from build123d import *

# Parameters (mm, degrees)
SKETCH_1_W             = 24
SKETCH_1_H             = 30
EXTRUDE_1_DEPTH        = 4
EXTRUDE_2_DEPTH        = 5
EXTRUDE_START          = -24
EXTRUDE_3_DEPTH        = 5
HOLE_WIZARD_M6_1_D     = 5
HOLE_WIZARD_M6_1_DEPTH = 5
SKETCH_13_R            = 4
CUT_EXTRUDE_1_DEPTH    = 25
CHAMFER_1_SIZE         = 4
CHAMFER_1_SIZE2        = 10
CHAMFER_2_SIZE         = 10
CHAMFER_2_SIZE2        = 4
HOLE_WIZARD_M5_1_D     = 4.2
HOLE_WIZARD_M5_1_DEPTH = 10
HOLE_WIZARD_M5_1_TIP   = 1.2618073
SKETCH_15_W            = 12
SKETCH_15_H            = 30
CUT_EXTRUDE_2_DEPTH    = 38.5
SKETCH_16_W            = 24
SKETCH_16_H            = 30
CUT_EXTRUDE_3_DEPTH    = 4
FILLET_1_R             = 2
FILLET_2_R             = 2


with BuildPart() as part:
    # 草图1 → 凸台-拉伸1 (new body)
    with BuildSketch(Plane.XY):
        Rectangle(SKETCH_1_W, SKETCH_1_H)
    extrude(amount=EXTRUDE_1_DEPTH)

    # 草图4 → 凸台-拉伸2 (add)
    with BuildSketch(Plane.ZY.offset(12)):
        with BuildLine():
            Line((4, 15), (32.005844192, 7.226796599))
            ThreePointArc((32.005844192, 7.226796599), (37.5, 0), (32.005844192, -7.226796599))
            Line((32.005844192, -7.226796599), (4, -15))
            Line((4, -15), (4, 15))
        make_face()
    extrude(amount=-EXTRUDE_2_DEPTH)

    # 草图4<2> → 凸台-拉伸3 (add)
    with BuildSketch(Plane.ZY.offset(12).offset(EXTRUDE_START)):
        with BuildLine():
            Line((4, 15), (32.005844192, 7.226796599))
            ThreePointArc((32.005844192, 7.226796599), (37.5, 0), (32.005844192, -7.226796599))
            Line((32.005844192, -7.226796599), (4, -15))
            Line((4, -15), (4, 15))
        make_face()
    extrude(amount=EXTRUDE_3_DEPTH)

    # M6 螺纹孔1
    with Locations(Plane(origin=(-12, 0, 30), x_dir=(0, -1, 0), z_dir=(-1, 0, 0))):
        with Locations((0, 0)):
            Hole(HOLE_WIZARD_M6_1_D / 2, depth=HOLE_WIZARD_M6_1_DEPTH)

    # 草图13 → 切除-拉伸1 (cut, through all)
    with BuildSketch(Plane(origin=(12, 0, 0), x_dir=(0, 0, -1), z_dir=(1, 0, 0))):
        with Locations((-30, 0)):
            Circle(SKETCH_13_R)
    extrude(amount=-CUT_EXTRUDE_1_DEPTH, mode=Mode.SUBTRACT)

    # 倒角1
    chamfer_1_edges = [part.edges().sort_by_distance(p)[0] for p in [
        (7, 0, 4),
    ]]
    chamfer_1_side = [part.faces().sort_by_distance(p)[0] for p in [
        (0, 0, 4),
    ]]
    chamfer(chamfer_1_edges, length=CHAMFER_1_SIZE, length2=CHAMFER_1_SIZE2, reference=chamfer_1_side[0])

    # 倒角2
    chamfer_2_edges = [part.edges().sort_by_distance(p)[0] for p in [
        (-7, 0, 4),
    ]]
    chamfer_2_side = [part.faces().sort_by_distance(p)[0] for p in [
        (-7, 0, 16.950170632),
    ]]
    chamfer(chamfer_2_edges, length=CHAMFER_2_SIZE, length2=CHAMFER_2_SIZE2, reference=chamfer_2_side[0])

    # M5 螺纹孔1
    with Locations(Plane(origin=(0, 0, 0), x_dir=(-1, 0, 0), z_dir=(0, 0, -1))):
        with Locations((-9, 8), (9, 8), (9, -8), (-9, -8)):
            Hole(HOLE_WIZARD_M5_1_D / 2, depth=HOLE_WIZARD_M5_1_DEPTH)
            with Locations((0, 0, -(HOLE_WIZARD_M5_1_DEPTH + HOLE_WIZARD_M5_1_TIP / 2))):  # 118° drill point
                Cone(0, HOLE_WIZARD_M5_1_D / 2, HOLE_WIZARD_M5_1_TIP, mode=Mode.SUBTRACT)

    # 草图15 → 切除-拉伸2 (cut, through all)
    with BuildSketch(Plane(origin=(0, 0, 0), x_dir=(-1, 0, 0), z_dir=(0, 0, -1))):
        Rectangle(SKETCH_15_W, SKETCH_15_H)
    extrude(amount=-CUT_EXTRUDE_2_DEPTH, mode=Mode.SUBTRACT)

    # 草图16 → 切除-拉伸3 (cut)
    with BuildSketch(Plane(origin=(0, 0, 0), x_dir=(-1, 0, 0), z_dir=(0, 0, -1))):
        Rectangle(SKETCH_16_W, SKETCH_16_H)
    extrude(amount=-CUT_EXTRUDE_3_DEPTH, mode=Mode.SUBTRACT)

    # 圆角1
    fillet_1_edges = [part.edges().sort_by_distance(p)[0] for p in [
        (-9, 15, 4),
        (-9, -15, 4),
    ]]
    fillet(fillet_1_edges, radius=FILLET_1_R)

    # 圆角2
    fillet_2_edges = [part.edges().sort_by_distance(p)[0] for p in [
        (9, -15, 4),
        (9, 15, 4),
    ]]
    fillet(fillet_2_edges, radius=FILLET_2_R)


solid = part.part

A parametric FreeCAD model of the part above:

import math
import FreeCAD as App
import Part
import Sketcher


def edges_at(feature, points):
    """Names of the edges that pass closest to the given points."""
    edges = feature.Shape.Edges
    near = lambda p: min(range(len(edges)), key=lambda i: edges[i].distToShape(Part.Vertex(*p))[0])
    return sorted({f"Edge{near(p) + 1}" for p in points})

doc = App.newDocument("Part")
params = doc.addObject("Spreadsheet::Sheet", "Params")
for row, (alias, value) in enumerate([
    ("sketch1_width", "24 mm"),
    ("sketch1_height", "30 mm"),
    ("pad1_length", "4 mm"),
    ("sketch2_radius", "7.5 mm"),
    ("sketch2_width", "30 mm"),
    ("pad2_length", "5 mm"),
    ("sketch3_radius", "7.5 mm"),
    ("sketch3_width", "30 mm"),
    ("pad3_length", "5 mm"),
    ("sketch4_diameter", "5 mm"),
    ("hole_diameter", "5 mm"),
    ("hole_depth", "5 mm"),
    ("sketch5_diameter", "8 mm"),
    ("chamfer_size", "4 mm"),
    ("chamfer_size2", "10 mm"),
    ("chamfer2_size", "10 mm"),
    ("chamfer2_size2", "4 mm"),
    ("sketch6_diameter", "4.2 mm"),
    ("hole2_diameter", "4.2 mm"),
    ("hole2_depth", "10 mm"),
    ("sketch7_width", "12 mm"),
    ("sketch7_height", "30 mm"),
    ("sketch8_width", "24 mm"),
    ("sketch8_height", "30 mm"),
    ("pocket3_length", "4 mm"),
    ("fillet_radius", "2 mm"),
    ("fillet2_radius", "2 mm"),
], start=1):
    params.set(f"A{row}", alias)
    params.set(f"B{row}", "=" + value)
    params.setAlias(f"B{row}", alias)

body = doc.addObject("PartDesign::Body", "Body")
body.AllowCompound = True

# Sketch on XY plane
sketch1 = body.newObject("Sketcher::SketchObject", "Sketch")
sketch1.AttachmentSupport = (doc.getObject("XY_Plane"), [""])
sketch1.MapMode = "FlatFace"
sketch1.addGeometry([
    Part.LineSegment(App.Vector(-12, 15, 0), App.Vector(-12, -15, 0)),
    Part.LineSegment(App.Vector(-12, -15, 0), App.Vector(12, -15, 0)),
    Part.LineSegment(App.Vector(12, -15, 0), App.Vector(12, 15, 0)),
    Part.LineSegment(App.Vector(12, 15, 0), App.Vector(-12, 15, 0)),
], False)
sketch1.addConstraint([
    Sketcher.Constraint("Coincident", 0, 2, 1, 1),
    Sketcher.Constraint("Coincident", 1, 2, 2, 1),
    Sketcher.Constraint("Coincident", 2, 2, 3, 1),
    Sketcher.Constraint("Coincident", 3, 2, 0, 1),
    Sketcher.Constraint("Vertical", 0),
    Sketcher.Constraint("Horizontal", 1),
    Sketcher.Constraint("Vertical", 2),
    Sketcher.Constraint("Horizontal", 3),
    Sketcher.Constraint("Symmetric", 0, 2, 2, 2, -1, 1),
    Sketcher.Constraint("DistanceX", 1, 1, 1, 2, 24.0),
    Sketcher.Constraint("DistanceY", 0, 2, 0, 1, 30.0),
])
sketch1.setExpression("Constraints[9]", "Params.sketch1_width")
sketch1.setExpression("Constraints[10]", "Params.sketch1_height")
pad1 = body.newObject("PartDesign::Pad", "Pad")
pad1.Profile = sketch1
pad1.setExpression("Length", "Params.pad1_length")

# Sketch on YZ plane
sketch2 = body.newObject("Sketcher::SketchObject", "Sketch001")
sketch2.AttachmentSupport = (doc.getObject("YZ_Plane"), [""])
sketch2.MapMode = "FlatFace"
sketch2.AttachmentOffset = App.Placement(App.Vector(0, 0, -12), App.Rotation())
sketch2.addGeometry([
    Part.LineSegment(App.Vector(7, 32, 0), App.Vector(15, 4, 0)),
    Part.LineSegment(App.Vector(15, 4, 0), App.Vector(-15, 4, 0)),
    Part.LineSegment(App.Vector(-15, 4, 0), App.Vector(-7, 32, 0)),
    Part.ArcOfCircle(Part.Circle(App.Vector(0, 30, 0), App.Vector(0, 0, 1), 8), math.radians(16), math.radians(164)),
], False)
sketch2.addConstraint([
    Sketcher.Constraint("Coincident", 0, 2, 1, 1),
    Sketcher.Constraint("Coincident", 1, 2, 2, 1),
    Sketcher.Constraint("Tangent", 2, 2, 3, 2),
    Sketcher.Constraint("Tangent", 3, 1, 0, 1),
    Sketcher.Constraint("Horizontal", 1),
    Sketcher.Constraint("Symmetric", 2, 2, 3, 1, -2),
    Sketcher.Constraint("Radius", 3, 7.5),
    Sketcher.Constraint("DistanceX", 1, 2, 1, 1, 30.0),
    Sketcher.Constraint("DistanceY", -1, 1, 3, 3, 30.0),
    Sketcher.Constraint("DistanceY", -1, 1, 0, 2, 4.0),
])
sketch2.setExpression("Constraints[6]", "Params.sketch2_radius")
sketch2.setExpression("Constraints[7]", "Params.sketch2_width")
pad2 = body.newObject("PartDesign::Pad", "Pad001")
pad2.Profile = sketch2
pad2.setExpression("Length", "Params.pad2_length")

# Sketch on YZ plane
sketch3 = body.newObject("Sketcher::SketchObject", "Sketch002")
sketch3.AttachmentSupport = (doc.getObject("YZ_Plane"), [""])
sketch3.MapMode = "FlatFace"
sketch3.AttachmentOffset = App.Placement(App.Vector(0, 0, 12), App.Rotation())
sketch3.addGeometry([
    Part.LineSegment(App.Vector(7, 32, 0), App.Vector(15, 4, 0)),
    Part.LineSegment(App.Vector(15, 4, 0), App.Vector(-15, 4, 0)),
    Part.LineSegment(App.Vector(-15, 4, 0), App.Vector(-7, 32, 0)),
    Part.ArcOfCircle(Part.Circle(App.Vector(0, 30, 0), App.Vector(0, 0, 1), 8), math.radians(16), math.radians(164)),
], False)
sketch3.addConstraint([
    Sketcher.Constraint("Coincident", 0, 2, 1, 1),
    Sketcher.Constraint("Coincident", 1, 2, 2, 1),
    Sketcher.Constraint("Tangent", 2, 2, 3, 2),
    Sketcher.Constraint("Tangent", 3, 1, 0, 1),
    Sketcher.Constraint("Horizontal", 1),
    Sketcher.Constraint("Symmetric", 2, 2, 3, 1, -2),
    Sketcher.Constraint("Radius", 3, 7.5),
    Sketcher.Constraint("DistanceX", 1, 2, 1, 1, 30.0),
    Sketcher.Constraint("DistanceY", -1, 1, 3, 3, 30.0),
    Sketcher.Constraint("DistanceY", -1, 1, 0, 2, 4.0),
])
sketch3.setExpression("Constraints[6]", "Params.sketch3_radius")
sketch3.setExpression("Constraints[7]", "Params.sketch3_width")
pad3 = body.newObject("PartDesign::Pad", "Pad002")
pad3.Profile = sketch3
pad3.setExpression("Length", "Params.pad3_length")
pad3.Reversed = True

# Sketch on YZ plane
sketch4 = body.newObject("Sketcher::SketchObject", "Sketch003")
sketch4.AttachmentSupport = (doc.getObject("YZ_Plane"), [""])
sketch4.MapMode = "FlatFace"
sketch4.AttachmentOffset = App.Placement(App.Vector(0, 0, -12), App.Rotation())
sketch4.addGeometry(Part.Circle(App.Vector(0, 30, 0), App.Vector(0, 0, 1), 2.5), False)
sketch4.addConstraint([
    Sketcher.Constraint("PointOnObject", 0, 3, -2),
    Sketcher.Constraint("Diameter", 0, 5.0),
    Sketcher.Constraint("DistanceY", -1, 1, 0, 3, 30.0),
])
sketch4.setExpression("Constraints[1]", "Params.sketch4_diameter")
doc.recompute()
hole = body.newObject("PartDesign::Hole", "Hole")
hole.Profile = sketch4
hole.ThreadType = "None"
hole.setExpression("Diameter", "Params.hole_diameter")
hole.DepthType = "Dimension"
hole.setExpression("Depth", "Params.hole_depth")
hole.DrillPoint = "Flat"
hole.Reversed = True

# Sketch on YZ plane
sketch5 = body.newObject("Sketcher::SketchObject", "Sketch004")
sketch5.AttachmentSupport = (doc.getObject("YZ_Plane"), [""])
sketch5.MapMode = "FlatFace"
sketch5.AttachmentOffset = App.Placement(App.Vector(0, 0, 12), App.Rotation())
sketch5.addGeometry(Part.Circle(App.Vector(0, 30, 0), App.Vector(0, 0, 1), 4), False)
sketch5.addConstraint([
    Sketcher.Constraint("PointOnObject", 0, 3, -2),
    Sketcher.Constraint("Diameter", 0, 8.0),
    Sketcher.Constraint("DistanceY", -1, 1, 0, 3, 30.0),
])
sketch5.setExpression("Constraints[1]", "Params.sketch5_diameter")
pocket1 = body.newObject("PartDesign::Pocket", "Pocket")
pocket1.Profile = sketch5
pocket1.Type = "ThroughAll"
doc.recompute()

chamfer = body.newObject("PartDesign::Chamfer", "Chamfer")
chamfer.Base = (pocket1, edges_at(pocket1, [(7, 0, 4)]))
chamfer.ChamferType = "Two distances"
chamfer.setExpression("Size", "Params.chamfer_size")
chamfer.setExpression("Size2", "Params.chamfer_size2")
doc.recompute()

chamfer2 = body.newObject("PartDesign::Chamfer", "Chamfer001")
chamfer2.Base = (chamfer, edges_at(chamfer, [(-7, 0, 4)]))
chamfer2.ChamferType = "Two distances"
chamfer2.setExpression("Size", "Params.chamfer2_size")
chamfer2.setExpression("Size2", "Params.chamfer2_size2")
chamfer2.FlipDirection = True

# Sketch on XY plane
sketch6 = body.newObject("Sketcher::SketchObject", "Sketch005")
sketch6.AttachmentSupport = (doc.getObject("XY_Plane"), [""])
sketch6.MapMode = "FlatFace"
sketch6.addGeometry([
    Part.Circle(App.Vector(9, 8, 0), App.Vector(0, 0, 1), 2.1),
    Part.Circle(App.Vector(-9, 8, 0), App.Vector(0, 0, 1), 2.1),
    Part.Circle(App.Vector(-9, -8, 0), App.Vector(0, 0, 1), 2.1),
    Part.Circle(App.Vector(9, -8, 0), App.Vector(0, 0, 1), 2.1),
], False)
sketch6.addConstraint([
    Sketcher.Constraint("Equal", 0, 1),
    Sketcher.Constraint("Equal", 1, 2),
    Sketcher.Constraint("Equal", 2, 3),
    Sketcher.Constraint("Symmetric", 0, 3, 2, 3, -1, 1),
    Sketcher.Constraint("Symmetric", 1, 3, 3, 3, -1, 1),
    Sketcher.Constraint("Symmetric", 0, 3, 1, 3, -2),
    Sketcher.Constraint("Diameter", 0, 4.2),
    Sketcher.Constraint("DistanceX", -1, 1, 0, 3, 9.0),
    Sketcher.Constraint("DistanceY", -1, 1, 0, 3, 8.0),
])
sketch6.setExpression("Constraints[6]", "Params.sketch6_diameter")
doc.recompute()
hole2 = body.newObject("PartDesign::Hole", "Hole001")
hole2.Profile = sketch6
hole2.ThreadType = "None"
hole2.setExpression("Diameter", "Params.hole2_diameter")
hole2.DepthType = "Dimension"
hole2.setExpression("Depth", "Params.hole2_depth")
hole2.DrillPoint = "Angled"
hole2.DrillPointAngle = 118
hole2.Reversed = True

# Sketch on XY plane
sketch7 = body.newObject("Sketcher::SketchObject", "Sketch006")
sketch7.AttachmentSupport = (doc.getObject("XY_Plane"), [""])
sketch7.MapMode = "FlatFace"
sketch7.addGeometry([
    Part.LineSegment(App.Vector(6, 15, 0), App.Vector(6, -15, 0)),
    Part.LineSegment(App.Vector(6, -15, 0), App.Vector(-6, -15, 0)),
    Part.LineSegment(App.Vector(-6, -15, 0), App.Vector(-6, 15, 0)),
    Part.LineSegment(App.Vector(-6, 15, 0), App.Vector(6, 15, 0)),
], False)
sketch7.addConstraint([
    Sketcher.Constraint("Coincident", 0, 2, 1, 1),
    Sketcher.Constraint("Coincident", 1, 2, 2, 1),
    Sketcher.Constraint("Coincident", 2, 2, 3, 1),
    Sketcher.Constraint("Coincident", 3, 2, 0, 1),
    Sketcher.Constraint("Vertical", 0),
    Sketcher.Constraint("Horizontal", 1),
    Sketcher.Constraint("Vertical", 2),
    Sketcher.Constraint("Horizontal", 3),
    Sketcher.Constraint("Symmetric", 0, 2, 2, 2, -1, 1),
    Sketcher.Constraint("DistanceX", 1, 2, 1, 1, 12.0),
    Sketcher.Constraint("DistanceY", 0, 2, 0, 1, 30.0),
])
sketch7.setExpression("Constraints[9]", "Params.sketch7_width")
sketch7.setExpression("Constraints[10]", "Params.sketch7_height")
pocket2 = body.newObject("PartDesign::Pocket", "Pocket001")
pocket2.Profile = sketch7
pocket2.Type = "ThroughAll"
pocket2.Reversed = True

# Sketch on XY plane
sketch8 = body.newObject("Sketcher::SketchObject", "Sketch007")
sketch8.AttachmentSupport = (doc.getObject("XY_Plane"), [""])
sketch8.MapMode = "FlatFace"
sketch8.addGeometry([
    Part.LineSegment(App.Vector(12, 15, 0), App.Vector(12, -15, 0)),
    Part.LineSegment(App.Vector(12, -15, 0), App.Vector(-12, -15, 0)),
    Part.LineSegment(App.Vector(-12, -15, 0), App.Vector(-12, 15, 0)),
    Part.LineSegment(App.Vector(-12, 15, 0), App.Vector(12, 15, 0)),
], False)
sketch8.addConstraint([
    Sketcher.Constraint("Coincident", 0, 2, 1, 1),
    Sketcher.Constraint("Coincident", 1, 2, 2, 1),
    Sketcher.Constraint("Coincident", 2, 2, 3, 1),
    Sketcher.Constraint("Coincident", 3, 2, 0, 1),
    Sketcher.Constraint("Vertical", 0),
    Sketcher.Constraint("Horizontal", 1),
    Sketcher.Constraint("Vertical", 2),
    Sketcher.Constraint("Horizontal", 3),
    Sketcher.Constraint("Symmetric", 0, 2, 2, 2, -1, 1),
    Sketcher.Constraint("DistanceX", 1, 2, 1, 1, 24.0),
    Sketcher.Constraint("DistanceY", 0, 2, 0, 1, 30.0),
])
sketch8.setExpression("Constraints[9]", "Params.sketch8_width")
sketch8.setExpression("Constraints[10]", "Params.sketch8_height")
pocket3 = body.newObject("PartDesign::Pocket", "Pocket002")
pocket3.Profile = sketch8
pocket3.setExpression("Length", "Params.pocket3_length")
pocket3.Reversed = True
doc.recompute()

fillet = body.newObject("PartDesign::Fillet", "Fillet")
fillet.Base = (pocket3, edges_at(pocket3, [(-9, 15, 4), (-9, -15, 4)]))
fillet.setExpression("Radius", "Params.fillet_radius")
doc.recompute()

fillet2 = body.newObject("PartDesign::Fillet", "Fillet001")
fillet2.Base = (fillet, edges_at(fillet, [(9, -15, 4), (9, 15, 4)]))
fillet2.setExpression("Radius", "Params.fillet2_radius")

doc.recompute()
